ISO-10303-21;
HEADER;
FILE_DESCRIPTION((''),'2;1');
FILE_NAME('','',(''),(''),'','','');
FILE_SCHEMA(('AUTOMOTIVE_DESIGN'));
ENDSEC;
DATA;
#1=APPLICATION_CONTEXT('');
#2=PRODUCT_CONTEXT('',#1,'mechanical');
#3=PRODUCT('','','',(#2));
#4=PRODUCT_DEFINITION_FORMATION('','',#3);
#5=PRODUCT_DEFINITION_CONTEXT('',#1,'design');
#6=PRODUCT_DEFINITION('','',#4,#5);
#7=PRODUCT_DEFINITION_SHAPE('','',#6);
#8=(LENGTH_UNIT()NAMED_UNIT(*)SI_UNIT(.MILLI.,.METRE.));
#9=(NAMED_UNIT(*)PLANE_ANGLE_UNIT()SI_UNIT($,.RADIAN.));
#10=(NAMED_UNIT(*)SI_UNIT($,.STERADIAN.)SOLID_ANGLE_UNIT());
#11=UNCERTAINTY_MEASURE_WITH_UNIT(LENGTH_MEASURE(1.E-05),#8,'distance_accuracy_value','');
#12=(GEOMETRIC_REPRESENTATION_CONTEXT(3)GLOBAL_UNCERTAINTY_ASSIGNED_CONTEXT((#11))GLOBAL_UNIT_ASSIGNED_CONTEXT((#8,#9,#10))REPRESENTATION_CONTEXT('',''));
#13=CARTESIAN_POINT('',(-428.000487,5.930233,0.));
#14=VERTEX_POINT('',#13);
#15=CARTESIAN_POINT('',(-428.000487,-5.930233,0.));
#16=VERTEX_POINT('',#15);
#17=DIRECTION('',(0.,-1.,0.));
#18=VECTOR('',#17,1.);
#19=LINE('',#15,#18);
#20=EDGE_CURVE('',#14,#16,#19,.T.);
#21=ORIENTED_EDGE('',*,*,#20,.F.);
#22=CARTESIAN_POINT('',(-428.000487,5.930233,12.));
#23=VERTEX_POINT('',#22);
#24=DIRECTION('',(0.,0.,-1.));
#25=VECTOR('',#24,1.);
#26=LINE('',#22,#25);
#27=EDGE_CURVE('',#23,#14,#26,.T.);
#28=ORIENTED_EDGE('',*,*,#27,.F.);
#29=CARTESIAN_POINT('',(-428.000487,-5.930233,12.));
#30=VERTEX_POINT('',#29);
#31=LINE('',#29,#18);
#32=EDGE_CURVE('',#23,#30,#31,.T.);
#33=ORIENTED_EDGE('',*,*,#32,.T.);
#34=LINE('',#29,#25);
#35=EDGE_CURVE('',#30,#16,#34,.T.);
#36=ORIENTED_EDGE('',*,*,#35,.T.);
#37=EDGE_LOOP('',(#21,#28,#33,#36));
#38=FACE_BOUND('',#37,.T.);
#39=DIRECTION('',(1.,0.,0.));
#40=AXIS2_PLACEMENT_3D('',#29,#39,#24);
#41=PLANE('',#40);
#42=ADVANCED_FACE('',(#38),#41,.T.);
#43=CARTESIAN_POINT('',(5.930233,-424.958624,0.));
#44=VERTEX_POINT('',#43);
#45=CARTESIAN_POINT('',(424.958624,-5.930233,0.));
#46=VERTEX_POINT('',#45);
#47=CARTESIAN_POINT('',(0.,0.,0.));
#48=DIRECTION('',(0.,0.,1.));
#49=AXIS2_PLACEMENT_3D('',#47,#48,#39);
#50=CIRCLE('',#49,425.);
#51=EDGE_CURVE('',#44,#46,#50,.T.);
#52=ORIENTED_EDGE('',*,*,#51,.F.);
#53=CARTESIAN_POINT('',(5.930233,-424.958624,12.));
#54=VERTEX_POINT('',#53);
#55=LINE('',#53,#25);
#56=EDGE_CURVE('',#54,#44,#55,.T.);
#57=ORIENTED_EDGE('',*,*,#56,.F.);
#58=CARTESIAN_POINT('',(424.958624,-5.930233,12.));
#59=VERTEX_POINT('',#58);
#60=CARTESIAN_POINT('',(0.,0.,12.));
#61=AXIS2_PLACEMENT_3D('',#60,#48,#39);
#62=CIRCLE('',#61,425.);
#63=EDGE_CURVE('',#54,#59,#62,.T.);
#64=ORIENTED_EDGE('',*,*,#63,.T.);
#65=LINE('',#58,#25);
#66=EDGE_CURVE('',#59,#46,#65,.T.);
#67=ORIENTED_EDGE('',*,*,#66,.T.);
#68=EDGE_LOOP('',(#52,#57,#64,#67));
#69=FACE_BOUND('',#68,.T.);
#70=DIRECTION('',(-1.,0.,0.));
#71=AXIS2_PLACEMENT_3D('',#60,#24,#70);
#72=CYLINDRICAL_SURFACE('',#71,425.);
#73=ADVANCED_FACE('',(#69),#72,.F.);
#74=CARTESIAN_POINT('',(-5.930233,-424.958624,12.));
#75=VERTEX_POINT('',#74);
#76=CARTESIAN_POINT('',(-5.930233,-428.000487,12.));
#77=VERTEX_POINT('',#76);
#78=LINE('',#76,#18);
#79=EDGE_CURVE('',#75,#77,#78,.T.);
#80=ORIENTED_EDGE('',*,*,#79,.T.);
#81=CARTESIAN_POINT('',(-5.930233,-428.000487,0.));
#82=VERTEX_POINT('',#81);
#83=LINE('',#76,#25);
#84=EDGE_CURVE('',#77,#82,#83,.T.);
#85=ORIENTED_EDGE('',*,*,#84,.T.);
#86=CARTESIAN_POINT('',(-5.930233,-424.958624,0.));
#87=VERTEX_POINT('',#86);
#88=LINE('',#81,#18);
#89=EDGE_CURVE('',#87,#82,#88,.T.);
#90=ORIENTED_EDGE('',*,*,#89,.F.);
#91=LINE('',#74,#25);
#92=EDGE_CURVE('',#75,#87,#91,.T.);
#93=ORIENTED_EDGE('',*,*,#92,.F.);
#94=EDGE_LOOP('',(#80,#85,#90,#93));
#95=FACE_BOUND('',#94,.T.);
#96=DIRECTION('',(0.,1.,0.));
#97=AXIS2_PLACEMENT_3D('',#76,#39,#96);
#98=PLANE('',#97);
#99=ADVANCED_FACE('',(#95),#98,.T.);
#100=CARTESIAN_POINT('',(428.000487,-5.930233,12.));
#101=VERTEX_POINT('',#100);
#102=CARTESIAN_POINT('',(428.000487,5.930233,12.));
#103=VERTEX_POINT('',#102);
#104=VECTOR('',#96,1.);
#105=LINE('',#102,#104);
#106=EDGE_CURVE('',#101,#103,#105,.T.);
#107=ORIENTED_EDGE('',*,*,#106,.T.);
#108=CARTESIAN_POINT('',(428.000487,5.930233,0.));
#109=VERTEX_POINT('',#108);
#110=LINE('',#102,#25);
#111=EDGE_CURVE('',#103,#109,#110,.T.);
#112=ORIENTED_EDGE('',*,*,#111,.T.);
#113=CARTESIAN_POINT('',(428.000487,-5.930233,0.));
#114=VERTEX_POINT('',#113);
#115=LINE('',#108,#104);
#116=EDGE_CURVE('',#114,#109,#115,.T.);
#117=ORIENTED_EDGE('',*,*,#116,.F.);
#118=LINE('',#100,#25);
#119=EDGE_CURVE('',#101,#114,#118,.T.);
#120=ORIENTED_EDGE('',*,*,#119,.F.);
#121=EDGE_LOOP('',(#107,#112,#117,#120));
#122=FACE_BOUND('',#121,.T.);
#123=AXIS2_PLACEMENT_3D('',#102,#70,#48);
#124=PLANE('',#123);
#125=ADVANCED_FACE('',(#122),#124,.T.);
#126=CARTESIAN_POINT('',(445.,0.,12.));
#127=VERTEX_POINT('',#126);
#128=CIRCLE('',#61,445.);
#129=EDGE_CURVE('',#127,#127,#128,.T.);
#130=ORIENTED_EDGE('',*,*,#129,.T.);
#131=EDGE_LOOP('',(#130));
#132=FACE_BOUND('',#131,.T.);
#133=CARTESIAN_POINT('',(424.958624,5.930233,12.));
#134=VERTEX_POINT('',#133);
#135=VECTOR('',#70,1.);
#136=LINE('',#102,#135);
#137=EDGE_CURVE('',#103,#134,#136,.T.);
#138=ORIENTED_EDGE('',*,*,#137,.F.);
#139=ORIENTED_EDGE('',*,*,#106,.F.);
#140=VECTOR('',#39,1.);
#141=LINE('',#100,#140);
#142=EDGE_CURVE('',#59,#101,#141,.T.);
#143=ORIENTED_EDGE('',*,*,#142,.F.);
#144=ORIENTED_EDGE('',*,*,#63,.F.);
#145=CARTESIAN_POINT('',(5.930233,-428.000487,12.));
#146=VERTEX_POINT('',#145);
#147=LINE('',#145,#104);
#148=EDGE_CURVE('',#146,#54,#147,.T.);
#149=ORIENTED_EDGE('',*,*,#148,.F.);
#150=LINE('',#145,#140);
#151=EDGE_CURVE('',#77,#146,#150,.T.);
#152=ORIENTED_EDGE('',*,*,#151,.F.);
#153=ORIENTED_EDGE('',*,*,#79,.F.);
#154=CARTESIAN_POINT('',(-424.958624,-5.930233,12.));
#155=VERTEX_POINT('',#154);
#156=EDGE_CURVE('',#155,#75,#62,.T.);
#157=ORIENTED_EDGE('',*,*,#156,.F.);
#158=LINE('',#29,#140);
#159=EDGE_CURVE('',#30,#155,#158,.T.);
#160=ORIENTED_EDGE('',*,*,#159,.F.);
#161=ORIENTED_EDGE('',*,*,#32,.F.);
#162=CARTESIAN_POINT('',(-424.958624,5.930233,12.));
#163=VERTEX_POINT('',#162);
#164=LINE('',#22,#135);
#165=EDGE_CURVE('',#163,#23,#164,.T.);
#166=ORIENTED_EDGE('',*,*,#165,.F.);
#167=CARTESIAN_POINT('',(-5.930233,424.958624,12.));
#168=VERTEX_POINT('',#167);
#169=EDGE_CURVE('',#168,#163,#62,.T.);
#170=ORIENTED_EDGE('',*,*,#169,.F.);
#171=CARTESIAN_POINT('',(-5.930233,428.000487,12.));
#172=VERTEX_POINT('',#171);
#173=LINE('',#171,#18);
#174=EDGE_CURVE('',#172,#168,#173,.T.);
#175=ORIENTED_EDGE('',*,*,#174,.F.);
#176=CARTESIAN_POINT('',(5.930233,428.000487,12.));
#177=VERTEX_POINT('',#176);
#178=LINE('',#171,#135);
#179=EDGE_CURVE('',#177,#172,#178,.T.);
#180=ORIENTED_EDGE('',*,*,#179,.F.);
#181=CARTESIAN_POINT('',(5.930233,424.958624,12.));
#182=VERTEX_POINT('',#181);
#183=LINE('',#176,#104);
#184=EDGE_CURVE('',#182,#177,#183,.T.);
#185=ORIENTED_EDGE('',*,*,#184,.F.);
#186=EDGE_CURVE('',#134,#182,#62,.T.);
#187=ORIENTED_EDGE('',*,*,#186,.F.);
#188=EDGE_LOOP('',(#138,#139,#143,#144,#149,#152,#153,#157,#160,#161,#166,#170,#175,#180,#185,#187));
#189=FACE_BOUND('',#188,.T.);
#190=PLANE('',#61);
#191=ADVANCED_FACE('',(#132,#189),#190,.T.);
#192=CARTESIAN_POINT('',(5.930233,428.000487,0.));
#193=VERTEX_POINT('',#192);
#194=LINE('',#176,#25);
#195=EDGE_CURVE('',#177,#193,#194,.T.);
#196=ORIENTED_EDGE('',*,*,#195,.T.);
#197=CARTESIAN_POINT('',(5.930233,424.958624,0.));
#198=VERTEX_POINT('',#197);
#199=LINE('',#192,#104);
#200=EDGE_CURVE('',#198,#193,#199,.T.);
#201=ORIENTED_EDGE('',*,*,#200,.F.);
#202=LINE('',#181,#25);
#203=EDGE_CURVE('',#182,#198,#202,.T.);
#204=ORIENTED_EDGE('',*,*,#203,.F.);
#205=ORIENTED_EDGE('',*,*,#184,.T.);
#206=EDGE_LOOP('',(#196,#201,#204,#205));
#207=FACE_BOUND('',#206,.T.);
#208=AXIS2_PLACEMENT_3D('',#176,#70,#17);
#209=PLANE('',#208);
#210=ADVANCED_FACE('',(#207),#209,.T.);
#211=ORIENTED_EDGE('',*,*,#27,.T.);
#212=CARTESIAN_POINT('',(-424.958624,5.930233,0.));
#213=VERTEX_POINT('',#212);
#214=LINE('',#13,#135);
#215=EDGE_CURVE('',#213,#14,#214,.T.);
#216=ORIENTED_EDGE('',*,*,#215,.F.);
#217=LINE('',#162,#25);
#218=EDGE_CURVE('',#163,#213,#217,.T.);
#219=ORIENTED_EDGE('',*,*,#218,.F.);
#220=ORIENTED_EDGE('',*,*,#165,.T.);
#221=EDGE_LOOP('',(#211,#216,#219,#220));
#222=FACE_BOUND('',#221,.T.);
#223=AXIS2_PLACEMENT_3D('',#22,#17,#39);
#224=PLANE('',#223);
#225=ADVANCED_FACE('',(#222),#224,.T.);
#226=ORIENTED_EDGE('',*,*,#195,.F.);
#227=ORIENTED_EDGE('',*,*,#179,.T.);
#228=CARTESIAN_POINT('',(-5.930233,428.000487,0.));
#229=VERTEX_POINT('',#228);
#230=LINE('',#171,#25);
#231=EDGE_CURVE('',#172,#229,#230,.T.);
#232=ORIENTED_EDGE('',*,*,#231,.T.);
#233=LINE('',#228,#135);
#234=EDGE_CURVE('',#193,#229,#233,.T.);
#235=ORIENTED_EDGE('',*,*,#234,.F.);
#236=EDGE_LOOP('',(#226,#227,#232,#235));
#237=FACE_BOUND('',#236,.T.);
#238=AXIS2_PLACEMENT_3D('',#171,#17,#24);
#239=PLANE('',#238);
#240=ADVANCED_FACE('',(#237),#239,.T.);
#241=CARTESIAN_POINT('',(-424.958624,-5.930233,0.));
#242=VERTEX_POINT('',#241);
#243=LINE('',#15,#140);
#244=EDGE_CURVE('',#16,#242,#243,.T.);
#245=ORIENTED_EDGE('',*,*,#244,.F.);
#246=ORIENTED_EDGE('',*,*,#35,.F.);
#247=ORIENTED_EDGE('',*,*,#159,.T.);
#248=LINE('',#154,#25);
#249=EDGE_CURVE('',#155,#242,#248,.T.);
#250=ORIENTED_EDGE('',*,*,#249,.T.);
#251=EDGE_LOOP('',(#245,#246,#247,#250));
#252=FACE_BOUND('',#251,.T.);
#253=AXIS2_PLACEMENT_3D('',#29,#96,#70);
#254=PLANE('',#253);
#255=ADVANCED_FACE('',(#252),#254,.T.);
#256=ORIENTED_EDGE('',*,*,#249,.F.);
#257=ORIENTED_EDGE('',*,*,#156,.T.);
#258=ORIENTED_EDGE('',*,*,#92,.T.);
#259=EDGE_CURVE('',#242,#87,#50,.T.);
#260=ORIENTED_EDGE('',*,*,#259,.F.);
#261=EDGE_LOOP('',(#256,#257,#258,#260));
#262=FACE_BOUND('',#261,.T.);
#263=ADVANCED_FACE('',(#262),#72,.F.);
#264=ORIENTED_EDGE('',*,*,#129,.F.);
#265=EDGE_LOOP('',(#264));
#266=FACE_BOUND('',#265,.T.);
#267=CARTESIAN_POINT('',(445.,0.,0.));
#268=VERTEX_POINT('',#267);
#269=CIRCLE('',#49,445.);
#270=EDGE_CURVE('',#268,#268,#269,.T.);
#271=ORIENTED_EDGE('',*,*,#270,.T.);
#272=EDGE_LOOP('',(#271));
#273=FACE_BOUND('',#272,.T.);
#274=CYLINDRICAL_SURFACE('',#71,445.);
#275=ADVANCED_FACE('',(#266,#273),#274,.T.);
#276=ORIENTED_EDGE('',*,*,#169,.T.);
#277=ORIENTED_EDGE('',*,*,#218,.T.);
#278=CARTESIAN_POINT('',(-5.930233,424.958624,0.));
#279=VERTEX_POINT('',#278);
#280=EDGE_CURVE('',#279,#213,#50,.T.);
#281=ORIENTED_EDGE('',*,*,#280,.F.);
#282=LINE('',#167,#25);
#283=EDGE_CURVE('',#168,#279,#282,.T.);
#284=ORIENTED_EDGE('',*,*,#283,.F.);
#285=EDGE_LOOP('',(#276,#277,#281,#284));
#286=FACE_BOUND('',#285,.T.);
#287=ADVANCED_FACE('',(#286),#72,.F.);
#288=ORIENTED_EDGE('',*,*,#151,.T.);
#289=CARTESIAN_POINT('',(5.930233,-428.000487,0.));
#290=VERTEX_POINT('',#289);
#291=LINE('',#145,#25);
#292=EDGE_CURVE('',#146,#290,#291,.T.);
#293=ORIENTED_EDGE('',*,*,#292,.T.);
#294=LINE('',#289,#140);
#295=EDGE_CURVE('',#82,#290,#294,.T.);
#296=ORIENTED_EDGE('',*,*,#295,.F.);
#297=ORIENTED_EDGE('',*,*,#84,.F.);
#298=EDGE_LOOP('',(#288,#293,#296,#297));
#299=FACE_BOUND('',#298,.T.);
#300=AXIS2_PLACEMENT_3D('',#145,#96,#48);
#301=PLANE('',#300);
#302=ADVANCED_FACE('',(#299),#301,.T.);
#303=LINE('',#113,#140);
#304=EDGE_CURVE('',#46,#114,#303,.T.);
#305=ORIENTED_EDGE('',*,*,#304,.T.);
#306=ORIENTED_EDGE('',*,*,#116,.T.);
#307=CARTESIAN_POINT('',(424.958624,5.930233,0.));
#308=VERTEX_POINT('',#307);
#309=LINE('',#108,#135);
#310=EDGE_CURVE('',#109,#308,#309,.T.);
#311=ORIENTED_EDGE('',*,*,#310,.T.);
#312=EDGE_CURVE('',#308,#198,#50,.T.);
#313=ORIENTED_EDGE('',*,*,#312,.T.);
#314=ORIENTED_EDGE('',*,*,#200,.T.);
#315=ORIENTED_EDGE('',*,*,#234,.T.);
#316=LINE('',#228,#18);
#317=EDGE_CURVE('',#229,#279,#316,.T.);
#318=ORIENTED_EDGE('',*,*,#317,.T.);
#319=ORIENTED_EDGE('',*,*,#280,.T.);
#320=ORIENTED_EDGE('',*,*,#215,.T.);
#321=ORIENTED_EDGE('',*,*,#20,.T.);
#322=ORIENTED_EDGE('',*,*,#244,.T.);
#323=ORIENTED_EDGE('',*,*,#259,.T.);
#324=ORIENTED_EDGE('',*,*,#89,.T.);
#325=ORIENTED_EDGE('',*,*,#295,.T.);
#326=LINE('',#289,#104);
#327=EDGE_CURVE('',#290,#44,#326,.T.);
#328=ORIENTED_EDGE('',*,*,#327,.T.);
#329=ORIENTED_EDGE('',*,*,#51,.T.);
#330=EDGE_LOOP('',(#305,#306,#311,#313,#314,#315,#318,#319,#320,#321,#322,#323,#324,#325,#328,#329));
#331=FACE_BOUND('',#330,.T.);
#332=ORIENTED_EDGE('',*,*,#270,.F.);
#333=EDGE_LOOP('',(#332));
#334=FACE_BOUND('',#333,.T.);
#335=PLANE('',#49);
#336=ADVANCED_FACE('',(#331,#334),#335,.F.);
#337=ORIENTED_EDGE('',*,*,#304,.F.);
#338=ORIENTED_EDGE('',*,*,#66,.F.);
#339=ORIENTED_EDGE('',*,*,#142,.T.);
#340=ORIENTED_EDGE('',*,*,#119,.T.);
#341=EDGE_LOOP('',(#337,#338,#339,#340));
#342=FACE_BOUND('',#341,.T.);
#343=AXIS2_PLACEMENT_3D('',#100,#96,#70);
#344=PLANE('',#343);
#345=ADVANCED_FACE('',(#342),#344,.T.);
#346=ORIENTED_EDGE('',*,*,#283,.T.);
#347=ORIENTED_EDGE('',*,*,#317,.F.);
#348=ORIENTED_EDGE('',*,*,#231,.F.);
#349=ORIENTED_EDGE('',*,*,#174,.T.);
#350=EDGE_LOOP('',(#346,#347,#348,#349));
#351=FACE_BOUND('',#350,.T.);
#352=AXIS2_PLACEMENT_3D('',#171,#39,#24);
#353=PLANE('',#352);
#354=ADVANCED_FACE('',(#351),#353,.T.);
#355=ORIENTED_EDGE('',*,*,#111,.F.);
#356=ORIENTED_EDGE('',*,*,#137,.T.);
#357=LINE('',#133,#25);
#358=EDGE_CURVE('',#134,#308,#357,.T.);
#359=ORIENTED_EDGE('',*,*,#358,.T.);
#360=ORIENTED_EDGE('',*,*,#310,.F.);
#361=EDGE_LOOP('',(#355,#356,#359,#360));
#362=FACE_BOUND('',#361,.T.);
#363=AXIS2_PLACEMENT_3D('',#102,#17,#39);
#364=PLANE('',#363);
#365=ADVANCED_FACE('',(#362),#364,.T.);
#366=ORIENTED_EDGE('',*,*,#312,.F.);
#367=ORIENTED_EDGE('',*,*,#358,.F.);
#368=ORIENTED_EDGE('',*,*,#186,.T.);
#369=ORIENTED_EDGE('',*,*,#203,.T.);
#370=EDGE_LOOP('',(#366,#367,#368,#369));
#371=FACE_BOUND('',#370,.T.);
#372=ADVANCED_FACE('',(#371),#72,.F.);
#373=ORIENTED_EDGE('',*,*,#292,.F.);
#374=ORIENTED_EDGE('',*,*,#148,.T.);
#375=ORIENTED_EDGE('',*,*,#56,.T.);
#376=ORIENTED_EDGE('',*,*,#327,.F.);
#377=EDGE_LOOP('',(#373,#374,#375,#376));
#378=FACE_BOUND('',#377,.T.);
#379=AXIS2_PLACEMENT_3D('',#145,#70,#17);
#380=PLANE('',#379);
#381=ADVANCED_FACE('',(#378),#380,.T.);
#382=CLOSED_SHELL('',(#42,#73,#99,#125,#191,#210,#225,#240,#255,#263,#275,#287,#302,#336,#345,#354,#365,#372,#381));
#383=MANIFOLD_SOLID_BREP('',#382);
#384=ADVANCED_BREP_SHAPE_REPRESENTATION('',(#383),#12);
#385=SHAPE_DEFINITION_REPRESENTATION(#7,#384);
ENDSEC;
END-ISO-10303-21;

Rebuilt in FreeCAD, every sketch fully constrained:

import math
import FreeCAD as App
import Part
import Sketcher
Q = App.Units.Quantity

doc = App.newDocument("Part")
body = doc.addObject("PartDesign::Body", "Body")

sketch1 = body.newObject("Sketcher::SketchObject", "Sketch")
sketch1.AttachmentSupport = (doc.getObject("XY_Plane"), [""])
sketch1.MapMode = "FlatFace"
sketch1.addGeometry([
    Part.Circle(App.Vector(0, 0, 0), App.Vector(0, 0, 1), 445),
    Part.LineSegment(App.Vector(425, 5.9, 0), App.Vector(428, 5.9, 0)),
    Part.LineSegment(App.Vector(428, 5.9, 0), App.Vector(428, -5.9, 0)),
    Part.LineSegment(App.Vector(428, -5.9, 0), App.Vector(425, -5.9, 0)),
    Part.ArcOfCircle(Part.Circle(App.Vector(0, 0, 0), App.Vector(0, 0, 1), 425), math.radians(-89), math.radians(-1)),
    Part.LineSegment(App.Vector(5.9, -425, 0), App.Vector(5.9, -428, 0)),
    Part.LineSegment(App.Vector(5.9, -428, 0), App.Vector(-5.9, -428, 0)),
    Part.LineSegment(App.Vector(-5.9, -428, 0), App.Vector(-5.9, -425, 0)),
    Part.ArcOfCircle(Part.Circle(App.Vector(0, 0, 0), App.Vector(0, 0, 1), 425), math.radians(-179), math.radians(-91)),
    Part.LineSegment(App.Vector(-425, -5.9, 0), App.Vector(-428, -5.9, 0)),
    Part.LineSegment(App.Vector(-428, -5.9, 0), App.Vector(-428, 5.9, 0)),
    Part.LineSegment(App.Vector(-428, 5.9, 0), App.Vector(-425, 5.9, 0)),
    Part.ArcOfCircle(Part.Circle(App.Vector(0, 0, 0), App.Vector(0, 0, 1), 425), math.radians(91), math.radians(179)),
    Part.LineSegment(App.Vector(-5.9, 425, 0), App.Vector(-5.9, 428, 0)),
    Part.LineSegment(App.Vector(-5.9, 428, 0), App.Vector(5.9, 428, 0)),
    Part.LineSegment(App.Vector(5.9, 428, 0), App.Vector(5.9, 425, 0)),
    Part.ArcOfCircle(Part.Circle(App.Vector(0, 0, 0), App.Vector(0, 0, 1), 425), math.radians(1), math.radians(89)),
], False)
sketch1.addConstraint([
    Sketcher.Constraint("Coincident", 1, 2, 2, 1),
    Sketcher.Constraint("Coincident", 2, 2, 3, 1),
    Sketcher.Constraint("Coincident", 3, 2, 4, 2),
    Sketcher.Constraint("Coincident", 4, 1, 5, 1),
    Sketcher.Constraint("Coincident", 5, 2, 6, 1),
    Sketcher.Constraint("Coincident", 6, 2, 7, 1),
    Sketcher.Constraint("Coincident", 7, 2, 8, 2),
    Sketcher.Constraint("Coincident", 8, 1, 9, 1),
    Sketcher.Constraint("Coincident", 9, 2, 10, 1),
    Sketcher.Constraint("Coincident", 10, 2, 11, 1),
    Sketcher.Constraint("Coincident", 11, 2, 12, 2),
    Sketcher.Constraint("Coincident", 12, 1, 13, 1),
    Sketcher.Constraint("Coincident", 13, 2, 14, 1),
    Sketcher.Constraint("Coincident", 14, 2, 15, 1),
    Sketcher.Constraint("Coincident", 15, 2, 16, 2),
    Sketcher.Constraint("Coincident", 16, 1, 1, 1),
    Sketcher.Constraint("Horizontal", 1),
    Sketcher.Constraint("Vertical", 2),
    Sketcher.Constraint("Horizontal", 3),
    Sketcher.Constraint("Vertical", 5),
    Sketcher.Constraint("Horizontal", 6),
    Sketcher.Constraint("Vertical", 7),
    Sketcher.Constraint("Horizontal", 9),
    Sketcher.Constraint("Vertical", 10),
    Sketcher.Constraint("Horizontal", 11),
    Sketcher.Constraint("Vertical", 13),
    Sketcher.Constraint("Horizontal", 14),
    Sketcher.Constraint("Vertical", 15),
    Sketcher.Constraint("Coincident", 0, 3, -1, 1),
    Sketcher.Constraint("Coincident", 4, 3, -1, 1),
    Sketcher.Constraint("Coincident", 8, 3, -1, 1),
    Sketcher.Constraint("Coincident", 12, 3, -1, 1),
    Sketcher.Constraint("Coincident", 16, 3, -1, 1),
    Sketcher.Constraint("Equal", 4, 8),
    Sketcher.Constraint("Equal", 8, 12),
    Sketcher.Constraint("Equal", 12, 16),
    Sketcher.Constraint("Symmetric", 1, 2, 9, 2, -1, 1),
    Sketcher.Constraint("Symmetric", 5, 2, 13, 2, -1, 1),
    Sketcher.Constraint("Horizontal", 1, 2, 10, 2),
    Sketcher.Constraint("Vertical", 5, 2, 14, 2),
    Sketcher.Constraint("Equal", 1, 3),
    Sketcher.Constraint("Equal", 6, 14),
    Sketcher.Constraint("Equal", 14, 2),
    Sketcher.Constraint("Equal", 11, 5),
    Sketcher.Constraint("Diameter", 0, Q("890 mm")),
    Sketcher.Constraint("Radius", 4, Q("425 mm")),
    Sketcher.Constraint("DistanceX", 1, 1, 1, 2, Q("3.041863 mm")),
    Sketcher.Constraint("DistanceX", 6, 2, 6, 1, Q("11.860465 mm")),
])
pad1 = body.newObject("PartDesign::Pad", "Pad")
pad1.Profile = sketch1
pad1.Length = 12

doc.recompute()
